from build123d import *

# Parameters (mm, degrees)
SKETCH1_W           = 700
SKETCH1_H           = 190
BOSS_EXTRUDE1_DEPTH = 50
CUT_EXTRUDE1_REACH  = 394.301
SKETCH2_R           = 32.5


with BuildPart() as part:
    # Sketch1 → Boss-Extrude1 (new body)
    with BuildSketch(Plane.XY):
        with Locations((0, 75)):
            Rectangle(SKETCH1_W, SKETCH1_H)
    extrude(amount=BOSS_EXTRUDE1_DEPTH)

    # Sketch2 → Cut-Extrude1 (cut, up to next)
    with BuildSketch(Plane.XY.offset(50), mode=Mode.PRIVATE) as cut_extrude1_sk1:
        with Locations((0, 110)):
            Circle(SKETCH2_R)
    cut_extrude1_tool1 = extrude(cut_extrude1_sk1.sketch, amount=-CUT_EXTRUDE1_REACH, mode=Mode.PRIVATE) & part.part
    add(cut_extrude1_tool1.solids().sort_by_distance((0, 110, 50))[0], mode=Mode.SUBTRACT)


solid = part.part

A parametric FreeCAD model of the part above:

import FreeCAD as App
import Part
import Sketcher

V = App.Vector


def add_polygon(sketch, points):
    """Adds a closed chain of lines whose ends are joined by coincident constraints."""
    first, n = sketch.GeometryCount, len(points)
    for a, b in zip(points, points[1:] + points[:1]):
        sketch.addGeometry(Part.LineSegment(App.Vector(*a, 0), App.Vector(*b, 0)), False)
    for i in range(n):
        sketch.addConstraint(Sketcher.Constraint("Coincident", first + i, 2, first + (i + 1) % n, 1))

doc = App.newDocument("Part")
body = doc.addObject("PartDesign::Body", "Body")

sketch1 = doc.addObject("Sketcher::SketchObject", "Sketch")
body.addObject(sketch1)
sketch1.AttachmentSupport = (doc.XY_Plane, [""])
sketch1.MapMode = "FlatFace"
add_polygon(sketch1, [(-350, 170), (-350, -20), (350, -20), (350, 170)])
sketch1.addConstraint([
    Sketcher.Constraint("Vertical", 0),
    Sketcher.Constraint("Horizontal", 1),
    Sketcher.Constraint("Vertical", 2),
    Sketcher.Constraint("Horizontal", 3),
    Sketcher.Constraint("DistanceX", 1, 1, 1, 2, 700.0),
    Sketcher.Constraint("DistanceY", 0, 2, 0, 1, 190.0),
    Sketcher.Constraint("DistanceX", 0, 2, -1, 1, 350.0),
    Sketcher.Constraint("DistanceY", 0, 2, -1, 1, 20.0),
])
pad1 = doc.addObject("PartDesign::Pad", "Pad")
body.addObject(pad1)
pad1.Profile = sketch1
pad1.Length = 50

sketch2 = doc.addObject("Sketcher::SketchObject", "Sketch001")
body.addObject(sketch2)
sketch2.AttachmentSupport = (doc.XY_Plane, [""])
sketch2.MapMode = "FlatFace"
sketch2.AttachmentOffset = App.Placement(V(0, 0, 50), App.Rotation())
sketch2.addGeometry(Part.Circle(V(0, 110, 0), V(0, 0, 1), 32.5), False)
sketch2.addConstraint([
    Sketcher.Constraint("PointOnObject", 0, 3, -2),
    Sketcher.Constraint("Diameter", 0, 65.0),
    Sketcher.Constraint("DistanceY", -1, 1, 0, 3, 110.0),
])
pocket1 = doc.addObject("PartDesign::Pocket", "Pocket")
body.addObject(pocket1)
pocket1.Profile = sketch2
pocket1.Type = "UpToFirst"

doc.recompute()
